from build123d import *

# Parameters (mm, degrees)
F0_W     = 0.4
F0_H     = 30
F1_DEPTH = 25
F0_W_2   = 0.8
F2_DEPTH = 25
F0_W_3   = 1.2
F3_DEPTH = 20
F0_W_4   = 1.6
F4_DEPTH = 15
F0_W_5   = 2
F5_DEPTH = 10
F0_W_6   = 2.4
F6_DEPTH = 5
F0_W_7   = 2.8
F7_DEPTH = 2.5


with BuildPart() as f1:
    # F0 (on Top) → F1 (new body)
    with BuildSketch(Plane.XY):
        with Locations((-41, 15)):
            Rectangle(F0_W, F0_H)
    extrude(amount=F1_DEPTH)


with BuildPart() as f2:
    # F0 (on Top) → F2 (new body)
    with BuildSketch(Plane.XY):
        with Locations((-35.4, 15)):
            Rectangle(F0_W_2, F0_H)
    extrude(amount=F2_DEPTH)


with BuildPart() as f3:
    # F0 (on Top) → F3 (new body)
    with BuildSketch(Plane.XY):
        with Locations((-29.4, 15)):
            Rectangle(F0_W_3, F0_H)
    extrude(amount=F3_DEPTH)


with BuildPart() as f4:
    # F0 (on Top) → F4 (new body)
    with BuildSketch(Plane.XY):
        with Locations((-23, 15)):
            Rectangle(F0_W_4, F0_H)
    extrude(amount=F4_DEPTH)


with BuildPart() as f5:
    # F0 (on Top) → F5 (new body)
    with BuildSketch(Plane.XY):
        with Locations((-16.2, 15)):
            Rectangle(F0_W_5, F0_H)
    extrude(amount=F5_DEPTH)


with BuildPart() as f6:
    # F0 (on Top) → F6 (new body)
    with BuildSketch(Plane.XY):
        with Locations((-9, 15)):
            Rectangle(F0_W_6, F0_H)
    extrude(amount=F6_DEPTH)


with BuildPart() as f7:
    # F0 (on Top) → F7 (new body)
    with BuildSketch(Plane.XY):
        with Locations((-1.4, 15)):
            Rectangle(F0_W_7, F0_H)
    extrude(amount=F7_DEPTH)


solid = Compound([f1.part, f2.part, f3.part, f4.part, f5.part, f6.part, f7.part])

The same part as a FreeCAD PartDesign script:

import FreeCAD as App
import Part
import Sketcher

V = App.Vector
Q = App.Units.Quantity


def add_polygon(sketch, points):
    """Adds a closed chain of lines whose ends are joined by coincident constraints."""
    first, n = sketch.GeometryCount, len(points)
    for a, b in zip(points, points[1:] + points[:1]):
        sketch.addGeometry(Part.LineSegment(App.Vector(*a, 0), App.Vector(*b, 0)), False)
    for i in range(n):
        sketch.addConstraint(Sketcher.Constraint("Coincident", first + i, 2, first + (i + 1) % n, 1))

doc = App.newDocument("Part")
body = doc.addObject("PartDesign::Body", "Body")

# Sketch on XY plane
sketch1 = body.newObject("Sketcher::SketchObject", "Sketch")
sketch1.AttachmentSupport = (doc.getObject("XY_Plane"), [""])
sketch1.MapMode = "FlatFace"
add_polygon(sketch1, [(-41.2, 30), (-41.2, 0), (-40.8, 0), (-40.8, 30)])  # lines 0-3
sketch1.addConstraint([
    Sketcher.Constraint("Vertical", 0),
    Sketcher.Constraint("Horizontal", 1),
    Sketcher.Constraint("Vertical", 2),
    Sketcher.Constraint("Horizontal", 3),
    Sketcher.Constraint("PointOnObject", 0, 2, -1),
    Sketcher.Constraint("DistanceY", 0, 2, 0, 1, Q("30 mm")),
    Sketcher.Constraint("DistanceX", 1, 1, 1, 2, Q("0.4 mm")),
    Sketcher.Constraint("DistanceX", 0, 2, -1, 1, Q("41.2 mm")),
])
pad1 = body.newObject("PartDesign::Pad", "Pad")
pad1.Profile = sketch1
pad1.Length = 25
body2 = doc.addObject("PartDesign::Body", "Body001")

# Sketch on XY plane
sketch2 = body2.newObject("Sketcher::SketchObject", "Sketch001")
sketch2.AttachmentSupport = (doc.getObject("XY_Plane001"), [""])
sketch2.MapMode = "FlatFace"
add_polygon(sketch2, [(-35.8, 30), (-35.8, 0), (-35, 0), (-35, 30)])  # lines 0-3
sketch2.addConstraint([
    Sketcher.Constraint("Vertical", 0),
    Sketcher.Constraint("Horizontal", 1),
    Sketcher.Constraint("Vertical", 2),
    Sketcher.Constraint("Horizontal", 3),
    Sketcher.Constraint("PointOnObject", 0, 2, -1),
    Sketcher.Constraint("DistanceY", 0, 2, 0, 1, Q("30 mm")),
    Sketcher.Constraint("DistanceX", 1, 1, 1, 2, Q("0.8 mm")),
    Sketcher.Constraint("DistanceX", 1, 2, -1, 1, Q("35 mm")),
])
pad2 = body2.newObject("PartDesign::Pad", "Pad001")
pad2.Profile = sketch2
pad2.Length = 25
body3 = doc.addObject("PartDesign::Body", "Body002")

# Sketch on XY plane
sketch3 = body3.newObject("Sketcher::SketchObject", "Sketch002")
sketch3.AttachmentSupport = (doc.getObject("XY_Plane002"), [""])
sketch3.MapMode = "FlatFace"
add_polygon(sketch3, [(-30, 30), (-30, 0), (-28.8, 0), (-28.8, 30)])  # lines 0-3
sketch3.addConstraint([
    Sketcher.Constraint("Vertical", 0),
    Sketcher.Constraint("Horizontal", 1),
    Sketcher.Constraint("Vertical", 2),
    Sketcher.Constraint("Horizontal", 3),
    Sketcher.Constraint("PointOnObject", 0, 2, -1),
    Sketcher.Constraint("DistanceY", 0, 2, 0, 1, Q("30 mm")),
    Sketcher.Constraint("DistanceX", 1, 1, 1, 2, Q("1.2 mm")),
    Sketcher.Constraint("DistanceX", 0, 2, -1, 1, Q("30 mm")),
])
pad3 = body3.newObject("PartDesign::Pad", "Pad002")
pad3.Profile = sketch3
pad3.Length = 20
body4 = doc.addObject("PartDesign::Body", "Body003")

# Sketch on XY plane
sketch4 = body4.newObject("Sketcher::SketchObject", "Sketch003")
sketch4.AttachmentSupport = (doc.getObject("XY_Plane003"), [""])
sketch4.MapMode = "FlatFace"
add_polygon(sketch4, [(-23.8, 30), (-23.8, 0), (-22.2, 0), (-22.2, 30)])  # lines 0-3
sketch4.addConstraint([
    Sketcher.Constraint("Vertical", 0),
    Sketcher.Constraint("Horizontal", 1),
    Sketcher.Constraint("Vertical", 2),
    Sketcher.Constraint("Horizontal", 3),
    Sketcher.Constraint("PointOnObject", 0, 2, -1),
    Sketcher.Constraint("DistanceY", 0, 2, 0, 1, Q("30 mm")),
    Sketcher.Constraint("DistanceX", 1, 1, 1, 2, Q("1.6 mm")),
    Sketcher.Constraint("DistanceX", 0, 2, -1, 1, Q("23.8 mm")),
])
pad4 = body4.newObject("PartDesign::Pad", "Pad003")
pad4.Profile = sketch4
pad4.Length = 15
body5 = doc.addObject("PartDesign::Body", "Body004")

# Sketch on XY plane
sketch5 = body5.newObject("Sketcher::SketchObject", "Sketch004")
sketch5.AttachmentSupport = (doc.getObject("XY_Plane004"), [""])
sketch5.MapMode = "FlatFace"
add_polygon(sketch5, [(-17.2, 30), (-17.2, 0), (-15.2, 0), (-15.2, 30)])  # lines 0-3
sketch5.addConstraint([
    Sketcher.Constraint("Vertical", 0),
    Sketcher.Constraint("Horizontal", 1),
    Sketcher.Constraint("Vertical", 2),
    Sketcher.Constraint("Horizontal", 3),
    Sketcher.Constraint("PointOnObject", 0, 2, -1),
    Sketcher.Constraint("DistanceX", 1, 1, 1, 2, Q("2 mm")),
    Sketcher.Constraint("DistanceY", 0, 2, 0, 1, Q("30 mm")),
    Sketcher.Constraint("DistanceX", 0, 2, -1, 1, Q("17.2 mm")),
])
pad5 = body5.newObject("PartDesign::Pad", "Pad004")
pad5.Profile = sketch5
pad5.Length = 10
body6 = doc.addObject("PartDesign::Body", "Body005")

# Sketch on XY plane
sketch6 = body6.newObject("Sketcher::SketchObject", "Sketch005")
sketch6.AttachmentSupport = (doc.getObject("XY_Plane005"), [""])
sketch6.MapMode = "FlatFace"
add_polygon(sketch6, [(-10.2, 30), (-10.2, 0), (-7.8, 0), (-7.8, 30)])  # lines 0-3
sketch6.addConstraint([
    Sketcher.Constraint("Vertical", 0),
    Sketcher.Constraint("Horizontal", 1),
    Sketcher.Constraint("Vertical", 2),
    Sketcher.Constraint("Horizontal", 3),
    Sketcher.Constraint("PointOnObject", 0, 2, -1),
    Sketcher.Constraint("DistanceY", 0, 2, 0, 1, Q("30 mm")),
    Sketcher.Constraint("DistanceX", 1, 1, 1, 2, Q("2.4 mm")),
    Sketcher.Constraint("DistanceX", 0, 2, -1, 1, Q("10.2 mm")),
])
pad6 = body6.newObject("PartDesign::Pad", "Pad005")
pad6.Profile = sketch6
pad6.Length = 5
body7 = doc.addObject("PartDesign::Body", "Body006")

# Sketch on XY plane
sketch7 = body7.newObject("Sketcher::SketchObject", "Sketch006")
sketch7.AttachmentSupport = (doc.getObject("XY_Plane006"), [""])
sketch7.MapMode = "FlatFace"
add_polygon(sketch7, [(-2.8, 30), (-2.8, 0), (0, 0), (0, 30)])  # lines 0-3
sketch7.addConstraint([
    Sketcher.Constraint("Vertical", 0),
    Sketcher.Constraint("Horizontal", 1),
    Sketcher.Constraint("Vertical", 2),
    Sketcher.Constraint("Horizontal", 3),
    Sketcher.Constraint("Coincident", 1, 2, -1, 1),
    Sketcher.Constraint("DistanceY", 0, 2, 0, 1, Q("30 mm")),
    Sketcher.Constraint("DistanceX", 1, 1, 1, 2, Q("2.8 mm")),
])
pad7 = body7.newObject("PartDesign::Pad", "Pad006")
pad7.Profile = sketch7
pad7.Length = 2.5

doc.recompute()
